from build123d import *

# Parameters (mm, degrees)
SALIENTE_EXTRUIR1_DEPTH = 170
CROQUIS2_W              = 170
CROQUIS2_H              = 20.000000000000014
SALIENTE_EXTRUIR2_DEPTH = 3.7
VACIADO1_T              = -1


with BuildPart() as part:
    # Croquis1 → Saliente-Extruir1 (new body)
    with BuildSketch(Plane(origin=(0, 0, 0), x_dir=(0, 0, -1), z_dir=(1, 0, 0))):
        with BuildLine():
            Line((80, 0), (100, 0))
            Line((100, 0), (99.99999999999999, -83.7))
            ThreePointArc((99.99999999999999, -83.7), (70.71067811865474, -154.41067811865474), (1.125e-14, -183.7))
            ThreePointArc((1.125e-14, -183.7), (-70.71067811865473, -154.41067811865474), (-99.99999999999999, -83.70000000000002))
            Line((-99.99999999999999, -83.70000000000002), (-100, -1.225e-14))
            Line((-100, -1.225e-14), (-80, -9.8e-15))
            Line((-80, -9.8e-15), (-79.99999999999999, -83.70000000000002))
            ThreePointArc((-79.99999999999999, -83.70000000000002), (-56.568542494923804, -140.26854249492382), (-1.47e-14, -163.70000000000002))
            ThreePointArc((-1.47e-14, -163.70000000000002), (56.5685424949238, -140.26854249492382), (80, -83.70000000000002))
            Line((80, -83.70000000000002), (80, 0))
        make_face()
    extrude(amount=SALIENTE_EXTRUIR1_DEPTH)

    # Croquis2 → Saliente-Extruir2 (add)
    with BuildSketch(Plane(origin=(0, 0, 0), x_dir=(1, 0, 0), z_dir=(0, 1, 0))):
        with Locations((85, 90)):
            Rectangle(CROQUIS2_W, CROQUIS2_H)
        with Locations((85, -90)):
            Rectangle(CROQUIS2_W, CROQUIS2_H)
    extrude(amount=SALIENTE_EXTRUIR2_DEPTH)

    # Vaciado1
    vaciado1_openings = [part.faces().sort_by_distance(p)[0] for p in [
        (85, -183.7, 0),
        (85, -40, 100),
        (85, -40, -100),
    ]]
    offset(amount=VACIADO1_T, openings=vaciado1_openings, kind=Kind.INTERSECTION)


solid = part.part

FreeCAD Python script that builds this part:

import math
import FreeCAD as App
import Part
import Sketcher
from FreeCAD import Vector


def faces_at(feature, points):
    """Names of the faces that lie closest to the given points."""
    faces = feature.Shape.Faces
    near = lambda p: min(range(len(faces)), key=lambda i: faces[i].distToShape(Part.Vertex(*p))[0])
    return sorted({f"Face{near(p) + 1}" for p in points})

doc = App.newDocument("Part")
body = doc.addObject("PartDesign::Body", "Body")

# Sketch on YZ plane
sketch1 = body.newObject("Sketcher::SketchObject", "Sketch")
sketch1.AttachmentSupport = (doc.getObject("YZ_Plane"), [""])
sketch1.MapMode = "FlatFace"
sketch1.addGeometry([
    Part.LineSegment(Vector(0, -100, 0), Vector(0, -80, 0)),  # 0
    Part.LineSegment(Vector(0, -80, 0), Vector(-83.7, -80, 0)),  # 1
    Part.ArcOfCircle(Part.Circle(Vector(-83.7, 0, 0), Vector(0, 0, 1), 80), math.radians(90), math.radians(270)),  # 2
    Part.LineSegment(Vector(-83.7, 80, 0), Vector(0, 80, 0)),  # 3
    Part.LineSegment(Vector(0, 80, 0), Vector(0, 100, 0)),  # 4
    Part.LineSegment(Vector(0, 100, 0), Vector(-83.7, 100, 0)),  # 5
    Part.ArcOfCircle(Part.Circle(Vector(-83.7, 0, 0), Vector(0, 0, 1), 100), math.radians(90), math.radians(270)),  # 6
    Part.LineSegment(Vector(-83.7, -100, 0), Vector(0, -100, 0)),  # 7
], False)
sketch1.addConstraint([
    Sketcher.Constraint("Coincident", 0, 2, 1, 1),
    Sketcher.Constraint("Tangent", 1, 2, 2, 2),
    Sketcher.Constraint("Tangent", 2, 1, 3, 1),
    Sketcher.Constraint("Coincident", 3, 2, 4, 1),
    Sketcher.Constraint("Coincident", 4, 2, 5, 1),
    Sketcher.Constraint("Tangent", 5, 2, 6, 1),
    Sketcher.Constraint("Tangent", 6, 2, 7, 1),
    Sketcher.Constraint("Coincident", 7, 2, 0, 1),
    Sketcher.Constraint("Vertical", 0),
    Sketcher.Constraint("Horizontal", 1),
    Sketcher.Constraint("Horizontal", 3),
    Sketcher.Constraint("Vertical", 4),
    Sketcher.Constraint("Horizontal", 5),
    Sketcher.Constraint("Horizontal", 7),
    Sketcher.Constraint("Coincident", 6, 3, 2, 3),
    Sketcher.Constraint("Symmetric", 0, 2, 3, 2, -1, 1),
    Sketcher.Constraint("PointOnObject", 0, 2, -2),
    Sketcher.Constraint("Radius", 2, 80.0),
    Sketcher.Constraint("Radius", 6, 100.0),
    Sketcher.Constraint("DistanceX", 1, 2, 1, 1, 83.7),
])
pad1 = body.newObject("PartDesign::Pad", "Pad")
pad1.Profile = sketch1
pad1.Length = 170

# Sketch on XZ plane
sketch2 = body.newObject("Sketcher::SketchObject", "Sketch001")
sketch2.AttachmentSupport = (doc.getObject("XZ_Plane"), [""])
sketch2.MapMode = "FlatFace"
sketch2.addGeometry([
    Part.LineSegment(Vector(0, -100, 0), Vector(0, -80, 0)),  # 0
    Part.LineSegment(Vector(0, -80, 0), Vector(170, -80, 0)),  # 1
    Part.LineSegment(Vector(170, -80, 0), Vector(170, -100, 0)),  # 2
    Part.LineSegment(Vector(170, -100, 0), Vector(0, -100, 0)),  # 3
    Part.LineSegment(Vector(0, 80, 0), Vector(0, 100, 0)),  # 4
    Part.LineSegment(Vector(0, 100, 0), Vector(170, 100, 0)),  # 5
    Part.LineSegment(Vector(170, 100, 0), Vector(170, 80, 0)),  # 6
    Part.LineSegment(Vector(170, 80, 0), Vector(0, 80, 0)),  # 7
], False)
sketch2.addConstraint([
    Sketcher.Constraint("Coincident", 0, 2, 1, 1),
    Sketcher.Constraint("Coincident", 1, 2, 2, 1),
    Sketcher.Constraint("Coincident", 2, 2, 3, 1),
    Sketcher.Constraint("Coincident", 3, 2, 0, 1),
    Sketcher.Constraint("Coincident", 4, 2, 5, 1),
    Sketcher.Constraint("Coincident", 5, 2, 6, 1),
    Sketcher.Constraint("Coincident", 6, 2, 7, 1),
    Sketcher.Constraint("Coincident", 7, 2, 4, 1),
    Sketcher.Constraint("Vertical", 0),
    Sketcher.Constraint("Horizontal", 1),
    Sketcher.Constraint("Vertical", 2),
    Sketcher.Constraint("Horizontal", 3),
    Sketcher.Constraint("Vertical", 4),
    Sketcher.Constraint("Horizontal", 5),
    Sketcher.Constraint("Vertical", 6),
    Sketcher.Constraint("Horizontal", 7),
    Sketcher.Constraint("Symmetric", 3, 2, 4, 2, -1, 1),
    Sketcher.Constraint("Symmetric", 1, 2, 6, 2, -1),
    Sketcher.Constraint("PointOnObject", 0, 2, -2),
    Sketcher.Constraint("DistanceX", 1, 1, 1, 2, 170.0),
    Sketcher.Constraint("DistanceY", 0, 1, 0, 2, 20.0),
    Sketcher.Constraint("DistanceY", 0, 2, -1, 1, 80.0),
])
pad2 = body.newObject("PartDesign::Pad", "Pad001")
pad2.Profile = sketch2
pad2.Length = 3.7
pad2.Reversed = True
doc.recompute()

thickness = body.newObject("PartDesign::Thickness", "Thickness")
thickness.Base = (pad2, faces_at(pad2, [(85, -183.7, 0), (85, -40, 100), (85, -40, -100)]))
thickness.Value = 1
thickness.Reversed = True
thickness.Join = "Intersection"

doc.recompute()
